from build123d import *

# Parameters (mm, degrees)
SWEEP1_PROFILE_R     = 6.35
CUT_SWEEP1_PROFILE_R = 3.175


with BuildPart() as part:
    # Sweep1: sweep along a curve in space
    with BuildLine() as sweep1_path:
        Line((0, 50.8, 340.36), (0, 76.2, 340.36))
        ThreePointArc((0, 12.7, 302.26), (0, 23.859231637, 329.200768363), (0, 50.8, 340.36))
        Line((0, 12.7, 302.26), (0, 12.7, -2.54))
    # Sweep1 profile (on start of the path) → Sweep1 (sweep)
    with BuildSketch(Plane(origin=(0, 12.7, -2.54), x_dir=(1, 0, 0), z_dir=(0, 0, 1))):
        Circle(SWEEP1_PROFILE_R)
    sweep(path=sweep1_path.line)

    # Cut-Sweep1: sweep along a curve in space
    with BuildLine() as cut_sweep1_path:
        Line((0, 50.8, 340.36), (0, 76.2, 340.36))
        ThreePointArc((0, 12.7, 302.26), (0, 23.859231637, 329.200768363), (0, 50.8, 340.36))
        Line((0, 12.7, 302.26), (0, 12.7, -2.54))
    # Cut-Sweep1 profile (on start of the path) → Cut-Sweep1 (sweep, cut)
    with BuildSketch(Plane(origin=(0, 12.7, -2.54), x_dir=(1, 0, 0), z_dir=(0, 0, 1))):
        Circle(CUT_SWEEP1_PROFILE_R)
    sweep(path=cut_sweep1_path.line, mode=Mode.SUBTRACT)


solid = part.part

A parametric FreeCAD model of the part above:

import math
import FreeCAD as App
import Part
import Sketcher
Q = App.Units.Quantity

doc = App.newDocument("Part")
body = doc.addObject("PartDesign::Body", "Body")

sketch1 = body.newObject("Sketcher::SketchObject", "Sketch")
sketch1.AttachmentSupport = (doc.getObject("XY_Plane"), [""])
sketch1.MapMode = "FlatFace"
sketch1.AttachmentOffset = App.Placement(App.Vector(0, 0, -0.1 * 25.4), App.Rotation())
sketch1.addGeometry(Part.Circle(App.Vector(0, 13, 0), App.Vector(0, 0, 1), 6), False)
sketch1.addConstraint([
    Sketcher.Constraint("PointOnObject", 0, 3, -2),
    Sketcher.Constraint("Diameter", 0, Q("0.5 in")),
    Sketcher.Constraint("DistanceY", -1, 1, 0, 3, Q("0.5 in")),
])

sketch2 = body.newObject("Sketcher::SketchObject", "Sketch001")
sketch2.AttachmentSupport = (doc.getObject("YZ_Plane"), [""])
sketch2.MapMode = "FlatFace"
sketch2.addGeometry([
    Part.LineSegment(App.Vector(13, -3, 0), App.Vector(13, 302, 0)),
    Part.ArcOfCircle(Part.Circle(App.Vector(51, 302, 0), App.Vector(0, 0, 1), 38), math.radians(90), math.radians(180)),
    Part.LineSegment(App.Vector(51, 340, 0), App.Vector(76, 340, 0)),
], False)
sketch2.addConstraint([
    Sketcher.Constraint("Tangent", 0, 2, 1, 2),
    Sketcher.Constraint("Tangent", 1, 1, 2, 1),
    Sketcher.Constraint("Vertical", 0),
    Sketcher.Constraint("Horizontal", 2),
    Sketcher.Constraint("Radius", 1, Q("1.5 in")),
    Sketcher.Constraint("DistanceX", 2, 1, 2, 2, Q("1 in")),
    Sketcher.Constraint("DistanceY", 0, 1, 0, 2, Q("12 in")),
    Sketcher.Constraint("DistanceX", -1, 1, 1, 3, Q("2 in")),
    Sketcher.Constraint("DistanceY", -1, 1, 1, 3, Q("11.9 in")),
])
doc.recompute()

additivepipe = body.newObject("PartDesign::AdditivePipe", "AdditivePipe")
additivepipe.Profile = sketch1
additivepipe.Spine = (sketch2, ["Edge1", "Edge2", "Edge3"])

sketch3 = body.newObject("Sketcher::SketchObject", "Sketch002")
sketch3.AttachmentSupport = (doc.getObject("XY_Plane"), [""])
sketch3.MapMode = "FlatFace"
sketch3.AttachmentOffset = App.Placement(App.Vector(0, 0, -0.1 * 25.4), App.Rotation())
sketch3.addGeometry(Part.Circle(App.Vector(0, 12.7, 0), App.Vector(0, 0, 1), 3.2), False)
sketch3.addConstraint([
    Sketcher.Constraint("PointOnObject", 0, 3, -2),
    Sketcher.Constraint("Diameter", 0, Q("0.25 in")),
    Sketcher.Constraint("DistanceY", -1, 1, 0, 3, Q("0.5 in")),
])

sketch4 = body.newObject("Sketcher::SketchObject", "Sketch003")
sketch4.AttachmentSupport = (doc.getObject("YZ_Plane"), [""])
sketch4.MapMode = "FlatFace"
sketch4.addGeometry([
    Part.LineSegment(App.Vector(13, -3, 0), App.Vector(13, 302, 0)),
    Part.ArcOfCircle(Part.Circle(App.Vector(51, 302, 0), App.Vector(0, 0, 1), 38), math.radians(90), math.radians(180)),
    Part.LineSegment(App.Vector(51, 340, 0), App.Vector(76, 340, 0)),
], False)
sketch4.addConstraint([
    Sketcher.Constraint("Tangent", 0, 2, 1, 2),
    Sketcher.Constraint("Tangent", 1, 1, 2, 1),
    Sketcher.Constraint("Vertical", 0),
    Sketcher.Constraint("Horizontal", 2),
    Sketcher.Constraint("Radius", 1, Q("1.5 in")),
    Sketcher.Constraint("DistanceX", 2, 1, 2, 2, Q("1 in")),
    Sketcher.Constraint("DistanceY", 0, 1, 0, 2, Q("12 in")),
    Sketcher.Constraint("DistanceX", -1, 1, 1, 3, Q("2 in")),
    Sketcher.Constraint("DistanceY", -1, 1, 1, 3, Q("11.9 in")),
])
doc.recompute()

subtractivepipe = body.newObject("PartDesign::SubtractivePipe", "SubtractivePipe")
subtractivepipe.Profile = sketch3
subtractivepipe.Spine = (sketch4, ["Edge1", "Edge2", "Edge3"])

doc.recompute()
